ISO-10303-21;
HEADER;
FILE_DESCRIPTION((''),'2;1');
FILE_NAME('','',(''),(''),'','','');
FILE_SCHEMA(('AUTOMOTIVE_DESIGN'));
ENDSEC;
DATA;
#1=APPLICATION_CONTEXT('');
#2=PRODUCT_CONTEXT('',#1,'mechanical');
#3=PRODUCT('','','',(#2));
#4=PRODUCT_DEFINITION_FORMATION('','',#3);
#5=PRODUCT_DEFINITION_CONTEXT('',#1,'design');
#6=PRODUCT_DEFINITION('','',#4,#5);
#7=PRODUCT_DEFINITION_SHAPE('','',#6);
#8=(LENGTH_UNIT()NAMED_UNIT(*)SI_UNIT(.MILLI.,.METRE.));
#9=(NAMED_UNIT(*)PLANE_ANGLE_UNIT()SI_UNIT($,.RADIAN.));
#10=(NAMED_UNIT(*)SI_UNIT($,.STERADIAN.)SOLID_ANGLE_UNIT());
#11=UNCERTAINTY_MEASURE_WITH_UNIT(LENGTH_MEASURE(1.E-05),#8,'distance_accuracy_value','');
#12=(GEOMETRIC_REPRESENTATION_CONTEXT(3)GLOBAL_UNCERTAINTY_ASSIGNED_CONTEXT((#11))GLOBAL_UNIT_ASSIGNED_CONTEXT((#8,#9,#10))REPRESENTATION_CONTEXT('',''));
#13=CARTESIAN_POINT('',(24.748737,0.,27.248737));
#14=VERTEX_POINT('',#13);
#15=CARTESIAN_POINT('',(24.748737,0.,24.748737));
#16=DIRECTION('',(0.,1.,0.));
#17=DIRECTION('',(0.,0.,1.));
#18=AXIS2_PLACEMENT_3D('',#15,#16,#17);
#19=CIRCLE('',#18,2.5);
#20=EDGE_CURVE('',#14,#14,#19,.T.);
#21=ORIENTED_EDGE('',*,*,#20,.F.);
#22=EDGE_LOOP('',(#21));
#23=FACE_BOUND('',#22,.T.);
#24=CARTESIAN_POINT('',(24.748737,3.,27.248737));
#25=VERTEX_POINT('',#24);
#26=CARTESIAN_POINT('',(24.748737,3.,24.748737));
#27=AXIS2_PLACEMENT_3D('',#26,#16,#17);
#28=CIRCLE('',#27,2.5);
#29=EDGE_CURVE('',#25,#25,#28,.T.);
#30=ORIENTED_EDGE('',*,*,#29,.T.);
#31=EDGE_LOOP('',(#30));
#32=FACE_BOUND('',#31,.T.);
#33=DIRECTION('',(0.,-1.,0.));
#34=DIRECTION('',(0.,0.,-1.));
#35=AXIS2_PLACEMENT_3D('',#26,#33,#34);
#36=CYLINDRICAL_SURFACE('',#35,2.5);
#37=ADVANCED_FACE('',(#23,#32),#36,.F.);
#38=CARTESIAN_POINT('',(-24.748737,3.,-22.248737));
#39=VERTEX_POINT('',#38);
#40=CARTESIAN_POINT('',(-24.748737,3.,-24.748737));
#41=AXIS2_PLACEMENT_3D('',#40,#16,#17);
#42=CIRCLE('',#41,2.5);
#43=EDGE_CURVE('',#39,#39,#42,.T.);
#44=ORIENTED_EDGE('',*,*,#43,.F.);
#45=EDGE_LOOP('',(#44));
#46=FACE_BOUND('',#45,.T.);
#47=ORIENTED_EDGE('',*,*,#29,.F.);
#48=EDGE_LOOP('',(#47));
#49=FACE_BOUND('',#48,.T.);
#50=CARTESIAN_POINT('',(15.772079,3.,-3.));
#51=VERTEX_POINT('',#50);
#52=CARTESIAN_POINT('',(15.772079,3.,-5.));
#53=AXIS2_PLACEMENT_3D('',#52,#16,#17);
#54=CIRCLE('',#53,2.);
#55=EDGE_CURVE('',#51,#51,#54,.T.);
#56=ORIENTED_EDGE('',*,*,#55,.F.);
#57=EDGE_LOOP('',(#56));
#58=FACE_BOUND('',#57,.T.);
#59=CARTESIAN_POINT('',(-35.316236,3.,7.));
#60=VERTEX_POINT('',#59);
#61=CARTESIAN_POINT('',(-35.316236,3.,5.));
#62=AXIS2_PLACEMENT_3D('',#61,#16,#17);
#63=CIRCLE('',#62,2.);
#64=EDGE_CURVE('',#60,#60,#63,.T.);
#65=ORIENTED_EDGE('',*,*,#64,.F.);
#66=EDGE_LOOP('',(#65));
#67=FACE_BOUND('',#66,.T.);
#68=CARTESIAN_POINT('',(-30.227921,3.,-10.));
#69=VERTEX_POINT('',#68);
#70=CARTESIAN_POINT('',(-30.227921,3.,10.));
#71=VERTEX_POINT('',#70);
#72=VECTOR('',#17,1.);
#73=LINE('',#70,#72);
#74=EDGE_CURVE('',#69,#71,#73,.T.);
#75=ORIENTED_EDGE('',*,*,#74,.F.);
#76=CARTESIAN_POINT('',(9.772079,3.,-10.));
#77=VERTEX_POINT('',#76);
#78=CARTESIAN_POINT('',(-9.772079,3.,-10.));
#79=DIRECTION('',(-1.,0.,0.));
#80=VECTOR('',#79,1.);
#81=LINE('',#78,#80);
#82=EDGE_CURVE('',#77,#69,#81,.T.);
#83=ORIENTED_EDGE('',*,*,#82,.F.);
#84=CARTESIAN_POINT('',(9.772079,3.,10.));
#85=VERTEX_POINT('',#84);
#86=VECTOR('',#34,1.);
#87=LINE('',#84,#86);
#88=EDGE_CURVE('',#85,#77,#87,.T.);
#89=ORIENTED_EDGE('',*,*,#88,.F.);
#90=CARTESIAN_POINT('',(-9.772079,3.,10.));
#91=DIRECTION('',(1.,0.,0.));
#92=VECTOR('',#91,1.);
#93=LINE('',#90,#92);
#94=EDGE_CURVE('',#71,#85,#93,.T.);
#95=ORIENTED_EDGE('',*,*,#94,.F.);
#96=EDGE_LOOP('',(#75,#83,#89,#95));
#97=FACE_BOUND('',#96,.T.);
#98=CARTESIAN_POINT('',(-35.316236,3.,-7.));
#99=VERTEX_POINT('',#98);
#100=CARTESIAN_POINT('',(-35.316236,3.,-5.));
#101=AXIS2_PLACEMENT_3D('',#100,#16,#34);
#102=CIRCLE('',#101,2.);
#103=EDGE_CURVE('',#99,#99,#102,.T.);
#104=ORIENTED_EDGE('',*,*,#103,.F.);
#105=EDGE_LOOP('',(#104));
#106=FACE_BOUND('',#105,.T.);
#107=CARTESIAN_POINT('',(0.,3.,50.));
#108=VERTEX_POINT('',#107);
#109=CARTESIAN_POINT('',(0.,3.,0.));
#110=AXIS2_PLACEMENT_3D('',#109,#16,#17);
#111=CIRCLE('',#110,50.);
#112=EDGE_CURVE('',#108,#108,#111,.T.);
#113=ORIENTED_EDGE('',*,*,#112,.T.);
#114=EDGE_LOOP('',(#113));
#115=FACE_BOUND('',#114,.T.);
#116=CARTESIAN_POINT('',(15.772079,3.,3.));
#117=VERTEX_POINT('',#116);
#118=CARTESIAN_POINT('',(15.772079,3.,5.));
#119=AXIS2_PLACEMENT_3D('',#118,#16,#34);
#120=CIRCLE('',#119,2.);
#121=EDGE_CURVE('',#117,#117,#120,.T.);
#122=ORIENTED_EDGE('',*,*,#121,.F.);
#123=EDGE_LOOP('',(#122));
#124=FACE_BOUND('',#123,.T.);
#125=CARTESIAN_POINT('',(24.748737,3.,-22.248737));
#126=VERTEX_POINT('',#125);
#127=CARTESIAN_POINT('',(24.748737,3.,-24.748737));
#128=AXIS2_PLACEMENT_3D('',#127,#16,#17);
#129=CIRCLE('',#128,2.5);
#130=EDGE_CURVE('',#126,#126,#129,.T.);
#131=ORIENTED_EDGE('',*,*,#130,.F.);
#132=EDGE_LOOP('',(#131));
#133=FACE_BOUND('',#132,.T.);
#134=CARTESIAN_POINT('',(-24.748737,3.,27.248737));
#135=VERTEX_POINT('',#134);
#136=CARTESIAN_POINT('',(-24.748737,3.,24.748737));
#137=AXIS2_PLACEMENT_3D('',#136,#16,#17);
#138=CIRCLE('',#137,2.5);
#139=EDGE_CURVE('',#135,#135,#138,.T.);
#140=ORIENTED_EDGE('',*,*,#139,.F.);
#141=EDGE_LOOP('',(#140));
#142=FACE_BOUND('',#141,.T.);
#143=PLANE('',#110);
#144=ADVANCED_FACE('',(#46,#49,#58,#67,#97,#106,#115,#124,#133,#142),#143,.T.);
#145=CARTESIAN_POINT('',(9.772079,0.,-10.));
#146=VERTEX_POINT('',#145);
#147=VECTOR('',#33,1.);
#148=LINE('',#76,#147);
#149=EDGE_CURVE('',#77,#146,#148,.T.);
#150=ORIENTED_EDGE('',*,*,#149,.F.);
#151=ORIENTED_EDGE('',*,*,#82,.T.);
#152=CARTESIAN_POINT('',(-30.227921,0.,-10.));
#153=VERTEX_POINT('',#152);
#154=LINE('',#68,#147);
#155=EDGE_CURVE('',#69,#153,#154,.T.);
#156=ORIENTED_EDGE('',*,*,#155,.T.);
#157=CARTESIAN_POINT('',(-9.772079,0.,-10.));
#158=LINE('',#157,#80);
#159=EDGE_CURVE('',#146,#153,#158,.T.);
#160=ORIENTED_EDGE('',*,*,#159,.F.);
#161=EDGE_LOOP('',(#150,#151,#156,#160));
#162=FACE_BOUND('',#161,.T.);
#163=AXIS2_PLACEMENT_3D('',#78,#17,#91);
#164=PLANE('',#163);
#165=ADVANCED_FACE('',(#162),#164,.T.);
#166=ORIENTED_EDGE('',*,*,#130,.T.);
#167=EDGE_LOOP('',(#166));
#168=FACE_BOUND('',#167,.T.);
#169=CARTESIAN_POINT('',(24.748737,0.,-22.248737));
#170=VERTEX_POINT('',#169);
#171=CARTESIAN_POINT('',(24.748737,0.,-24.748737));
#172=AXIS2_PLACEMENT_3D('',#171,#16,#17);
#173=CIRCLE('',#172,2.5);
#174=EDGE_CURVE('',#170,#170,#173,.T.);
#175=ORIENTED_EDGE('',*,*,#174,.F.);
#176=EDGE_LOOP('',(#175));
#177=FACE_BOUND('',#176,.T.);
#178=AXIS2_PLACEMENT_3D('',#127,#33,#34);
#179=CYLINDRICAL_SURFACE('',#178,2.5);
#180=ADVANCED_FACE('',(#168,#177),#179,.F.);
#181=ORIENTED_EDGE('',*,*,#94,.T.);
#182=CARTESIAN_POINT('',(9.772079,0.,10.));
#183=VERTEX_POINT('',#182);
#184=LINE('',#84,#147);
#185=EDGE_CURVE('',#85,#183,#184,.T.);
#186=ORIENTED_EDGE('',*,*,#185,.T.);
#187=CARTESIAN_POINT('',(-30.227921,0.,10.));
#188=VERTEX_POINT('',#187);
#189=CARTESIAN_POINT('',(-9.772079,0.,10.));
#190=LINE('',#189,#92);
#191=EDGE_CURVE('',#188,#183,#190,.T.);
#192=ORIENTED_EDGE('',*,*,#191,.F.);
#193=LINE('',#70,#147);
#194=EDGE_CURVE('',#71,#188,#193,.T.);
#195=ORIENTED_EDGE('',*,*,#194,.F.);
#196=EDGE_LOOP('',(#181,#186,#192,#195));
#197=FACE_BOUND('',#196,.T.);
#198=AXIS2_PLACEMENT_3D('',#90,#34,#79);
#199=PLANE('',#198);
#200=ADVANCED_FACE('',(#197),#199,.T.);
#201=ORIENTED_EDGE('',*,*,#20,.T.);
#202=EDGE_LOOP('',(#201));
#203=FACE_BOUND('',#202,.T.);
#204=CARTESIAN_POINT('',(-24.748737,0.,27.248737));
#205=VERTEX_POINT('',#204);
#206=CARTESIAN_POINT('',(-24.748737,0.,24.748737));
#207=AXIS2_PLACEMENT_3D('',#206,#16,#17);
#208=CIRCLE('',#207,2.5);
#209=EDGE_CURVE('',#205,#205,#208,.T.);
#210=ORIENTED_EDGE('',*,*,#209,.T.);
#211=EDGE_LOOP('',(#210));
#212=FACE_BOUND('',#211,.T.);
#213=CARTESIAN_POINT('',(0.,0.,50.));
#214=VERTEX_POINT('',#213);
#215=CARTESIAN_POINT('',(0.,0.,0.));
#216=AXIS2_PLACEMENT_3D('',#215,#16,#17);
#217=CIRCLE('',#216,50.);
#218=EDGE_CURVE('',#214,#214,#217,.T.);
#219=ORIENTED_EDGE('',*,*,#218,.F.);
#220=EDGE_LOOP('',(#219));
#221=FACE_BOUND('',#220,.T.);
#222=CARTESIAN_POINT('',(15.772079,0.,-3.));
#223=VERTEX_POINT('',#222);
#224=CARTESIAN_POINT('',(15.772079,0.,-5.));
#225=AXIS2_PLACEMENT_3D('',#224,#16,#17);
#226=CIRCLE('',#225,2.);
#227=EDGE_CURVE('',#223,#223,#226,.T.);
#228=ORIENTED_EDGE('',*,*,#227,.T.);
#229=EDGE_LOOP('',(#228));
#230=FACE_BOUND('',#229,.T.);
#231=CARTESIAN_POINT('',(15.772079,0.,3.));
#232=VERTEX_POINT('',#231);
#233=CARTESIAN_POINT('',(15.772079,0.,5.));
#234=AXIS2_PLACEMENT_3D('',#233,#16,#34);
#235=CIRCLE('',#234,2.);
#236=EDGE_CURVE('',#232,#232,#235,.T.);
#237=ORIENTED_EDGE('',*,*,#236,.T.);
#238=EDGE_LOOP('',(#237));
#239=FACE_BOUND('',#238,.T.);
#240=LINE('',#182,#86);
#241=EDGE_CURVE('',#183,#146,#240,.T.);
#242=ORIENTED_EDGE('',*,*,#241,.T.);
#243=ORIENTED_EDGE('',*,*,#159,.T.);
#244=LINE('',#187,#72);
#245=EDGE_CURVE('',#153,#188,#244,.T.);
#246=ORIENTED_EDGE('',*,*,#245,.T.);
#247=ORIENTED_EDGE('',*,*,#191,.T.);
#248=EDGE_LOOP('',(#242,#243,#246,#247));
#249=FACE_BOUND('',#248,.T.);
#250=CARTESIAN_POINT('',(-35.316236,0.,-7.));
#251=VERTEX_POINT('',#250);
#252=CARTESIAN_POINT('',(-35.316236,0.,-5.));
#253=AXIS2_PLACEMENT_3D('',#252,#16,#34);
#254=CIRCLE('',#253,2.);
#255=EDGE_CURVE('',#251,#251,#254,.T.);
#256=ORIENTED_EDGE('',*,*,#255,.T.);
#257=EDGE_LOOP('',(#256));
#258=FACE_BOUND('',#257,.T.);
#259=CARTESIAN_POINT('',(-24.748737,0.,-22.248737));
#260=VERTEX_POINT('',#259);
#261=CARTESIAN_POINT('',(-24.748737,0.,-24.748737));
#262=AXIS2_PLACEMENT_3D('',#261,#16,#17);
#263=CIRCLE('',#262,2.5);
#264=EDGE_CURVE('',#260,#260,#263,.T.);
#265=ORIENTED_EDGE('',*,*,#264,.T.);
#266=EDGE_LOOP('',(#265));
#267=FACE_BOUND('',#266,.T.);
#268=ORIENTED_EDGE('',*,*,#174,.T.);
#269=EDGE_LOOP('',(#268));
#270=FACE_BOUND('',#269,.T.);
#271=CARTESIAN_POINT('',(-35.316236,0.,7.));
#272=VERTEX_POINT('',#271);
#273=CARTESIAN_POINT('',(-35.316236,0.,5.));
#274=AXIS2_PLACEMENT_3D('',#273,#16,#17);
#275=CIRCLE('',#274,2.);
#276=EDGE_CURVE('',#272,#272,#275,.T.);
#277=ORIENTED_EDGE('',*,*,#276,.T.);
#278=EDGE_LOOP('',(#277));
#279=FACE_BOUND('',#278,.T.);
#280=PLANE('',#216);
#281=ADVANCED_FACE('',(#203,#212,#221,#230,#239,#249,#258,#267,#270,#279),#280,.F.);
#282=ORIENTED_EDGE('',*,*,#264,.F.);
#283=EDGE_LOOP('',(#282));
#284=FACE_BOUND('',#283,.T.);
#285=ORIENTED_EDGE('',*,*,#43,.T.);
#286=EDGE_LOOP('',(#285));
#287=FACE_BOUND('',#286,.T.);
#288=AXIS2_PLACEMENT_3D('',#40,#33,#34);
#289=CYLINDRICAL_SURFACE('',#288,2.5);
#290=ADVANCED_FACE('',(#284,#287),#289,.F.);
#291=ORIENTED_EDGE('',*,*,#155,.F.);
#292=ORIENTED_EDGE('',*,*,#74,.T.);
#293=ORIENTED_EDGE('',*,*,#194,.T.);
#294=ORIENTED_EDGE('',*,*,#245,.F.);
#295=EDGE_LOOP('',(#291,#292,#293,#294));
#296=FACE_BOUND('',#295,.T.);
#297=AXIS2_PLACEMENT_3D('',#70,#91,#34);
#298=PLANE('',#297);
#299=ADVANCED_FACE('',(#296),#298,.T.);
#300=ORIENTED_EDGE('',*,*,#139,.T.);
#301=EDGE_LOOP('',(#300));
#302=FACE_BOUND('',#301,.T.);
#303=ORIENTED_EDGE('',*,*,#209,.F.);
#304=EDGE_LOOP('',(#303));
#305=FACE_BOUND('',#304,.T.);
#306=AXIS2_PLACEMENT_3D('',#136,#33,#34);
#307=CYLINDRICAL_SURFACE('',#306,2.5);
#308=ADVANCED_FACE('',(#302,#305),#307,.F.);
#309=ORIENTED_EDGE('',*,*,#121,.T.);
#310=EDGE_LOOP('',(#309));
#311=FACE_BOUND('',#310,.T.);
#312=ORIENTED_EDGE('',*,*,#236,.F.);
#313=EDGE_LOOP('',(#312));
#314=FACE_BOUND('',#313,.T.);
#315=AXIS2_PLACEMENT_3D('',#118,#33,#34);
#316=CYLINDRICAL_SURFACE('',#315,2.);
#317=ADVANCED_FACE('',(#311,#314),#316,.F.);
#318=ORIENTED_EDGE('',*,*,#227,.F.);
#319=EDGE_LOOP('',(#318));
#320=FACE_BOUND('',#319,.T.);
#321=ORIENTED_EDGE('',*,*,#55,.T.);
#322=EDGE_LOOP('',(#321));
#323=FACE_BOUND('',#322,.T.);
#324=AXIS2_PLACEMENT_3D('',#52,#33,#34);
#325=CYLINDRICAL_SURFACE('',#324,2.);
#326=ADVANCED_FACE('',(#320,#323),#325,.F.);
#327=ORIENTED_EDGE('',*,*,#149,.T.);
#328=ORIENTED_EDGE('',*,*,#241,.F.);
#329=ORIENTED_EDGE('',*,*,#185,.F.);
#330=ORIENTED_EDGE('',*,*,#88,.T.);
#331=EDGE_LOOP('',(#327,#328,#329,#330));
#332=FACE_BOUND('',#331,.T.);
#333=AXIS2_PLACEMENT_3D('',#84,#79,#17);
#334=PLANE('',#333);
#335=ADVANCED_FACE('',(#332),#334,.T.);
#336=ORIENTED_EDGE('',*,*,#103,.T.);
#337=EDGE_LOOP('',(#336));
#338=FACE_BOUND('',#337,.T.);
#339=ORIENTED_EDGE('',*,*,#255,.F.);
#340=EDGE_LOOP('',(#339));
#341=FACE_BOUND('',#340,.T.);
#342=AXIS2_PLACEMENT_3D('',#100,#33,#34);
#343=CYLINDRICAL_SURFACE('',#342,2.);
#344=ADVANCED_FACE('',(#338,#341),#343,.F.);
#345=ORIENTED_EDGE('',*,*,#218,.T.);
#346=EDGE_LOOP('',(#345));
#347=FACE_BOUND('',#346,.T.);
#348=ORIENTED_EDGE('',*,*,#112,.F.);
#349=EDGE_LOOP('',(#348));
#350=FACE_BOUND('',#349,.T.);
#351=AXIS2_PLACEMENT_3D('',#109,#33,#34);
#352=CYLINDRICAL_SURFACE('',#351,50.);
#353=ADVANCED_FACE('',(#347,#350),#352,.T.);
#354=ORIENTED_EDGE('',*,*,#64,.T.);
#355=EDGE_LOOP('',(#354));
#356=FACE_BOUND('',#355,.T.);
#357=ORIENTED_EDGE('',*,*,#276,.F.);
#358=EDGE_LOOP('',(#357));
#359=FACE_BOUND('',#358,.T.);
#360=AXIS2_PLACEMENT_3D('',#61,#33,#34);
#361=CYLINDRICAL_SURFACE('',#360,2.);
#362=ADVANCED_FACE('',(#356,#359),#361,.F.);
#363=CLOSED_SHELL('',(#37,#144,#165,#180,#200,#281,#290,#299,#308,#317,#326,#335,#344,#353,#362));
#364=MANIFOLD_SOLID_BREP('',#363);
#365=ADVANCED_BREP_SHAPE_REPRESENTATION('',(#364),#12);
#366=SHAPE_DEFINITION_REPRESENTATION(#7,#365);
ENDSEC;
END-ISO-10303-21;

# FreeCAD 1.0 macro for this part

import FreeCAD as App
import Part
import Sketcher
from FreeCAD import Vector


def add_polygon(sketch, points):
    """Adds a closed chain of lines whose ends are joined by coincident constraints."""
    first, n = sketch.GeometryCount, len(points)
    for a, b in zip(points, points[1:] + points[:1]):
        sketch.addGeometry(Part.LineSegment(App.Vector(*a, 0), App.Vector(*b, 0)), False)
    for i in range(n):
        sketch.addConstraint(Sketcher.Constraint("Coincident", first + i, 2, first + (i + 1) % n, 1))

doc = App.newDocument("Part")
body = doc.addObject("PartDesign::Body", "Body")

# Sketch on XZ plane
sketch1 = body.newObject("Sketcher::SketchObject", "Sketch")
sketch1.AttachmentSupport = (doc.getObject("XZ_Plane"), [""])
sketch1.MapMode = "FlatFace"
sketch1.addGeometry(Part.Circle(Vector(0, 0, 0), Vector(0, 0, 1), 50), False)  # 0
sketch1.addGeometry(Part.Circle(Vector(-24.7, -24.7, 0), Vector(0, 0, 1), 2.5), False)  # 1
sketch1.addGeometry(Part.Circle(Vector(-35.3, -5, 0), Vector(0, 0, 1), 2), False)  # 2
sketch1.addGeometry(Part.Circle(Vector(-35.3, 5, 0), Vector(0, 0, 1), 2), False)  # 3
sketch1.addGeometry(Part.Circle(Vector(-24.7, 24.7, 0), Vector(0, 0, 1), 2.5), False)  # 4
add_polygon(sketch1, [(9.8, 10), (-30.2, 10), (-30.2, -10), (9.8, -10)])  # lines 5-8
sketch1.addGeometry(Part.Circle(Vector(24.7, -24.7, 0), Vector(0, 0, 1), 2.5), False)  # 9
sketch1.addGeometry(Part.Circle(Vector(15.8, -5, 0), Vector(0, 0, 1), 2), False)  # 10
sketch1.addGeometry(Part.Circle(Vector(15.8, 5, 0), Vector(0, 0, 1), 2), False)  # 11
sketch1.addGeometry(Part.Circle(Vector(24.7, 24.7, 0), Vector(0, 0, 1), 2.5), False)  # 12
sketch1.addConstraint(Sketcher.Constraint("Horizontal", 5))
sketch1.addConstraint(Sketcher.Constraint("Vertical", 6))
sketch1.addConstraint(Sketcher.Constraint("Horizontal", 7))
sketch1.addConstraint(Sketcher.Constraint("Vertical", 8))
sketch1.addConstraint(Sketcher.Constraint("Coincident", 0, 3, -1, 1))
sketch1.addConstraint(Sketcher.Constraint("Equal", 2, 3))
sketch1.addConstraint(Sketcher.Constraint("Equal", 1, 4))
sketch1.addConstraint(Sketcher.Constraint("Equal", 4, 9))
sketch1.addConstraint(Sketcher.Constraint("Equal", 3, 10))
sketch1.addConstraint(Sketcher.Constraint("Equal", 10, 11))
sketch1.addConstraint(Sketcher.Constraint("Equal", 9, 12))
sketch1.addConstraint(Sketcher.Constraint("Symmetric", 4, 3, 9, 3, -1, 1))
sketch1.addConstraint(Sketcher.Constraint("Symmetric", 1, 3, 12, 3, -1, 1))
sketch1.addConstraint(Sketcher.Constraint("Symmetric", 1, 3, 9, 3, -2))
sketch1.addConstraint(Sketcher.Constraint("Symmetric", 2, 3, 3, 3, -1))
sketch1.addConstraint(Sketcher.Constraint("Symmetric", 10, 3, 11, 3, -1))
sketch1.addConstraint(Sketcher.Constraint("Horizontal", 2, 3, 10, 3))
sketch1.addConstraint(Sketcher.Constraint("Diameter", 0, 100.0))
sketch1.addConstraint(Sketcher.Constraint("Diameter", 1, 5.0))
sketch1.addConstraint(Sketcher.Constraint("Diameter", 2, 4.0))
sketch1.addConstraint(Sketcher.Constraint("DistanceX", 5, 2, 5, 1, 40.0))
sketch1.addConstraint(Sketcher.Constraint("DistanceY", 6, 2, 6, 1, 20.0))
sketch1.addConstraint(Sketcher.Constraint("DistanceY", 2, 3, -1, 1, 5.0))
sketch1.addConstraint(Sketcher.Constraint("DistanceY", -1, 1, 5, 2, 10.0))
sketch1.addConstraint(Sketcher.Constraint("DistanceX", 7, 2, 10, 3, 6.0))
sketch1.addConstraint(Sketcher.Constraint("DistanceX", 2, 3, 1, 3, 10.567499))
sketch1.addConstraint(Sketcher.Constraint("DistanceX", -1, 1, 10, 3, 15.772079))
sketch1.addConstraint(Sketcher.Constraint("DistanceX", 10, 3, 9, 3, 8.976659))
sketch1.addConstraint(Sketcher.Constraint("DistanceY", 1, 3, -1, 1, 24.748737))
pad1 = body.newObject("PartDesign::Pad", "Pad")
pad1.Profile = sketch1
pad1.Length = 3
pad1.Reversed = True

doc.recompute()
